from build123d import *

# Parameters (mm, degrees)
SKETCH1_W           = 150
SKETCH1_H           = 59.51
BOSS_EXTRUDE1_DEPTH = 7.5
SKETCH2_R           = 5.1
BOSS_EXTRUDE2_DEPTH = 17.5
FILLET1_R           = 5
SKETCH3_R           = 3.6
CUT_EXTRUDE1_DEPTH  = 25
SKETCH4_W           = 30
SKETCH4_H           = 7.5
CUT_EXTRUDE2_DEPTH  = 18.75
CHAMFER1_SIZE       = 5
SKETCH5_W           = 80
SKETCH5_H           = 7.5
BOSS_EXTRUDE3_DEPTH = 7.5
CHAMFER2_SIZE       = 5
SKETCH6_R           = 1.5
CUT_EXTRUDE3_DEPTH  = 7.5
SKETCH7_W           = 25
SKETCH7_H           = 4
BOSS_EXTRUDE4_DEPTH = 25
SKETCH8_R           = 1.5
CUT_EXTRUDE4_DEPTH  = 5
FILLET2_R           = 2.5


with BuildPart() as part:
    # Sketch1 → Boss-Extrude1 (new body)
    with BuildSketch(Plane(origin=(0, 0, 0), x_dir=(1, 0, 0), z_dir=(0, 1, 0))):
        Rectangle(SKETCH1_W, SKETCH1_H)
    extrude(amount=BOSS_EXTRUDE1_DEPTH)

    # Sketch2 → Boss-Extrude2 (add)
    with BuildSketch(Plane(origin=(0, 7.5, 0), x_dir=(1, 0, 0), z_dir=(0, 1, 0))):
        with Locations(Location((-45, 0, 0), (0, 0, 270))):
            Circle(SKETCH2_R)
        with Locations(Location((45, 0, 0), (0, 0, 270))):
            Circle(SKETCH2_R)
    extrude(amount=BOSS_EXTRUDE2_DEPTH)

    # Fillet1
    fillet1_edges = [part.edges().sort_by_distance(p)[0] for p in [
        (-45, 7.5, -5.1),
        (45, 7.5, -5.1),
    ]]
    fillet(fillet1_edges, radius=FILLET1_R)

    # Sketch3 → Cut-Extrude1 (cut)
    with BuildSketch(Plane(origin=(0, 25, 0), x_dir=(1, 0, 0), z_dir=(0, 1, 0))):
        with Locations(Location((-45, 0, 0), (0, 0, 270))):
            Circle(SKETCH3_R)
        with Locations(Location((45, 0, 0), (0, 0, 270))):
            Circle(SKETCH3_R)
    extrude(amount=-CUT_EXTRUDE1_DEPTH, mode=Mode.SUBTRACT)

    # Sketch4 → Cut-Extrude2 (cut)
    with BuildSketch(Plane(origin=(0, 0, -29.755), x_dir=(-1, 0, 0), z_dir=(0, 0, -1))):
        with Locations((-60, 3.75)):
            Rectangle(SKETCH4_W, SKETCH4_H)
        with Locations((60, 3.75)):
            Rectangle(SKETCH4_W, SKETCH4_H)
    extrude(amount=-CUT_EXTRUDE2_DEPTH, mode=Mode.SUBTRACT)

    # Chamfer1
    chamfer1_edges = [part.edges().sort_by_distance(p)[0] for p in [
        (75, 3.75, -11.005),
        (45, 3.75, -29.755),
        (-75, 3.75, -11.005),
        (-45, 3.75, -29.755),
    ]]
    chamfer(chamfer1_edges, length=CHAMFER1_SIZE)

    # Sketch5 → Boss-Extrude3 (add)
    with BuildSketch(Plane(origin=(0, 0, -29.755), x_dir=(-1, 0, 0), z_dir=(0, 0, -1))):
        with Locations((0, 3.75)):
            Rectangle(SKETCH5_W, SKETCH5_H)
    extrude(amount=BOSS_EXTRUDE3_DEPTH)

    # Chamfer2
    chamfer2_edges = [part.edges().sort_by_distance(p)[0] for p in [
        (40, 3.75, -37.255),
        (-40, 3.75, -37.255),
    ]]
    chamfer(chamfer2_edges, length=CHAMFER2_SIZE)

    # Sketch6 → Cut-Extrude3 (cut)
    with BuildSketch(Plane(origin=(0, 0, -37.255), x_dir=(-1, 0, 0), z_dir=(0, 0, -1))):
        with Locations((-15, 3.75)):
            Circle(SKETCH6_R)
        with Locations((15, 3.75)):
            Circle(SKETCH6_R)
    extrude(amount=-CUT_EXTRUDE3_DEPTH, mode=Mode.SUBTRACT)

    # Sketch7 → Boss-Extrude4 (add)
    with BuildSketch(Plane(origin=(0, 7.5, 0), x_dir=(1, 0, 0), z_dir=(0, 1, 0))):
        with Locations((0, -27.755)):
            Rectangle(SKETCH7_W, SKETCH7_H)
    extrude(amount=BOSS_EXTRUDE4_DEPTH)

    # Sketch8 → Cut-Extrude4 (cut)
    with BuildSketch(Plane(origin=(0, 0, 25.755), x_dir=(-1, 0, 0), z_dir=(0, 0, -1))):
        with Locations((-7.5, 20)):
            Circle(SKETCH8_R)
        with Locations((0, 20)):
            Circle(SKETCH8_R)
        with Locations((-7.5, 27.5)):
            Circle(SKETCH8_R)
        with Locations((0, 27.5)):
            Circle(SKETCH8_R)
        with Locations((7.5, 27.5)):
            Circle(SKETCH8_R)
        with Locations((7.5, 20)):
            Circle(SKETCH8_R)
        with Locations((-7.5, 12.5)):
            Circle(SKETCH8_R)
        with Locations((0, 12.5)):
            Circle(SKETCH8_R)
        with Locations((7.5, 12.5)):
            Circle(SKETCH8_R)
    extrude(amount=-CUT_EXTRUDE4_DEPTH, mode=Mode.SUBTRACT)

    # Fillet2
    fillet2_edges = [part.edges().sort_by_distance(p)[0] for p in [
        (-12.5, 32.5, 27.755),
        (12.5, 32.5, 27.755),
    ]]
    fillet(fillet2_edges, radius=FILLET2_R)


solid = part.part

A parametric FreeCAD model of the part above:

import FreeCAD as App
import Part
import Sketcher
from FreeCAD import Vector
Q = App.Units.Quantity


def edges_at(feature, points):
    """Names of the edges that pass closest to the given points."""
    edges = feature.Shape.Edges
    near = lambda p: min(range(len(edges)), key=lambda i: edges[i].distToShape(Part.Vertex(*p))[0])
    return sorted({f"Edge{near(p) + 1}" for p in points})

doc = App.newDocument("Part")
body = doc.addObject("PartDesign::Body", "Body")

sketch1 = doc.addObject("Sketcher::SketchObject", "Sketch")
body.addObject(sketch1)
sketch1.AttachmentSupport = (doc.XZ_Plane, [""])
sketch1.MapMode = "FlatFace"
sketch1.addGeometry([
    Part.LineSegment(Vector(-75, -29.755, 0), Vector(-75, 29.755, 0)),
    Part.LineSegment(Vector(-75, 29.755, 0), Vector(75, 29.755, 0)),
    Part.LineSegment(Vector(75, 29.755, 0), Vector(75, -29.755, 0)),
    Part.LineSegment(Vector(75, -29.755, 0), Vector(-75, -29.755, 0)),
], False)
sketch1.addConstraint([
    Sketcher.Constraint("Coincident", 0, 2, 1, 1),
    Sketcher.Constraint("Coincident", 1, 2, 2, 1),
    Sketcher.Constraint("Coincident", 2, 2, 3, 1),
    Sketcher.Constraint("Coincident", 3, 2, 0, 1),
    Sketcher.Constraint("Vertical", 0),
    Sketcher.Constraint("Horizontal", 1),
    Sketcher.Constraint("Vertical", 2),
    Sketcher.Constraint("Horizontal", 3),
    Sketcher.Constraint("Symmetric", 0, 2, 2, 2, -1, 1),
    Sketcher.Constraint("DistanceX", 1, 1, 1, 2, Q("150 mm")),
    Sketcher.Constraint("DistanceY", 0, 1, 0, 2, Q("59.51 mm")),
])
pad1 = doc.addObject("PartDesign::Pad", "Pad")
body.addObject(pad1)
pad1.Profile = sketch1
pad1.Length = 7.5
pad1.Reversed = True

sketch2 = doc.addObject("Sketcher::SketchObject", "Sketch001")
body.addObject(sketch2)
sketch2.AttachmentSupport = (doc.XZ_Plane, [""])
sketch2.MapMode = "FlatFace"
sketch2.AttachmentOffset = App.Placement(Vector(0, 0, -7.5), App.Rotation())
sketch2.addGeometry([
    Part.Circle(Vector(-45, 0, 0), Vector(0, 0, 1), 5.1),
    Part.Circle(Vector(45, 0, 0), Vector(0, 0, 1), 5.1),
], False)
sketch2.addConstraint([
    Sketcher.Constraint("Equal", 0, 1),
    Sketcher.Constraint("Symmetric", 0, 3, 1, 3, -1, 1),
    Sketcher.Constraint("PointOnObject", 0, 3, -1),
    Sketcher.Constraint("Diameter", 0, Q("10.2 mm")),
    Sketcher.Constraint("DistanceX", 0, 3, -1, 1, Q("45 mm")),
])
pad2 = doc.addObject("PartDesign::Pad", "Pad001")
body.addObject(pad2)
pad2.Profile = sketch2
pad2.Length = 17.5
pad2.Reversed = True
doc.recompute()

fillet = doc.addObject("PartDesign::Fillet", "Fillet")
body.addObject(fillet)
fillet.Base = (pad2, edges_at(pad2, [(-45, 7.5, -5.1), (45, 7.5, -5.1)]))
fillet.Radius = 5

sketch3 = doc.addObject("Sketcher::SketchObject", "Sketch002")
body.addObject(sketch3)
sketch3.AttachmentSupport = (doc.XZ_Plane, [""])
sketch3.MapMode = "FlatFace"
sketch3.AttachmentOffset = App.Placement(Vector(0, 0, -25), App.Rotation())
sketch3.addGeometry([
    Part.Circle(Vector(-45, 0, 0), Vector(0, 0, 1), 3.6),
    Part.Circle(Vector(45, 0, 0), Vector(0, 0, 1), 3.6),
], False)
sketch3.addConstraint([
    Sketcher.Constraint("Equal", 0, 1),
    Sketcher.Constraint("Symmetric", 0, 3, 1, 3, -1, 1),
    Sketcher.Constraint("PointOnObject", 0, 3, -1),
    Sketcher.Constraint("Diameter", 0, Q("7.2 mm")),
    Sketcher.Constraint("DistanceX", 0, 3, -1, 1, Q("45 mm")),
])
pocket1 = doc.addObject("PartDesign::Pocket", "Pocket")
body.addObject(pocket1)
pocket1.Profile = sketch3
pocket1.Length = 25
pocket1.Reversed = True

sketch4 = doc.addObject("Sketcher::SketchObject", "Sketch003")
body.addObject(sketch4)
sketch4.AttachmentSupport = (doc.XY_Plane, [""])
sketch4.MapMode = "FlatFace"
sketch4.AttachmentOffset = App.Placement(Vector(0, 0, -29.755), App.Rotation())
sketch4.addGeometry([
    Part.LineSegment(Vector(75, 7.5, 0), Vector(75, 0, 0)),
    Part.LineSegment(Vector(75, 0, 0), Vector(45, 0, 0)),
    Part.LineSegment(Vector(45, 0, 0), Vector(45, 7.5, 0)),
    Part.LineSegment(Vector(45, 7.5, 0), Vector(75, 7.5, 0)),
    Part.LineSegment(Vector(-45, 7.5, 0), Vector(-45, 0, 0)),
    Part.LineSegment(Vector(-45, 0, 0), Vector(-75, 0, 0)),
    Part.LineSegment(Vector(-75, 0, 0), Vector(-75, 7.5, 0)),
    Part.LineSegment(Vector(-75, 7.5, 0), Vector(-45, 7.5, 0)),
], False)
sketch4.addConstraint([
    Sketcher.Constraint("Coincident", 0, 2, 1, 1),
    Sketcher.Constraint("Coincident", 1, 2, 2, 1),
    Sketcher.Constraint("Coincident", 2, 2, 3, 1),
    Sketcher.Constraint("Coincident", 3, 2, 0, 1),
    Sketcher.Constraint("Coincident", 4, 2, 5, 1),
    Sketcher.Constraint("Coincident", 5, 2, 6, 1),
    Sketcher.Constraint("Coincident", 6, 2, 7, 1),
    Sketcher.Constraint("Coincident", 7, 2, 4, 1),
    Sketcher.Constraint("Vertical", 0),
    Sketcher.Constraint("Horizontal", 1),
    Sketcher.Constraint("Vertical", 2),
    Sketcher.Constraint("Horizontal", 3),
    Sketcher.Constraint("Vertical", 4),
    Sketcher.Constraint("Horizontal", 5),
    Sketcher.Constraint("Vertical", 6),
    Sketcher.Constraint("Horizontal", 7),
    Sketcher.Constraint("Symmetric", 1, 2, 4, 2, -1, 1),
    Sketcher.Constraint("Symmetric", 0, 2, 5, 2, -2),
    Sketcher.Constraint("Horizontal", 3, 2, 6, 2),
    Sketcher.Constraint("DistanceX", 1, 2, 1, 1, Q("30 mm")),
    Sketcher.Constraint("DistanceY", 0, 2, 0, 1, Q("7.5 mm")),
    Sketcher.Constraint("DistanceX", -1, 1, 0, 2, Q("75 mm")),
])
pocket2 = doc.addObject("PartDesign::Pocket", "Pocket001")
body.addObject(pocket2)
pocket2.Profile = sketch4
pocket2.Length = 18.75
pocket2.Reversed = True
doc.recompute()

chamfer = doc.addObject("PartDesign::Chamfer", "Chamfer")
body.addObject(chamfer)
chamfer.Base = (pocket2, edges_at(pocket2, [
    (75, 3.75, -11.005),
    (45, 3.75, -29.755),
    (-75, 3.75, -11.005),
    (-45, 3.75, -29.755),
]))
chamfer.Size = 5

sketch5 = doc.addObject("Sketcher::SketchObject", "Sketch004")
body.addObject(sketch5)
sketch5.AttachmentSupport = (doc.XY_Plane, [""])
sketch5.MapMode = "FlatFace"
sketch5.AttachmentOffset = App.Placement(Vector(0, 0, -29.755), App.Rotation())
sketch5.addGeometry([
    Part.LineSegment(Vector(40, 7.5, 0), Vector(40, 0, 0)),
    Part.LineSegment(Vector(40, 0, 0), Vector(-40, 0, 0)),
    Part.LineSegment(Vector(-40, 0, 0), Vector(-40, 7.5, 0)),
    Part.LineSegment(Vector(-40, 7.5, 0), Vector(40, 7.5, 0)),
], False)
sketch5.addConstraint([
    Sketcher.Constraint("Coincident", 0, 2, 1, 1),
    Sketcher.Constraint("Coincident", 1, 2, 2, 1),
    Sketcher.Constraint("Coincident", 2, 2, 3, 1),
    Sketcher.Constraint("Coincident", 3, 2, 0, 1),
    Sketcher.Constraint("Vertical", 0),
    Sketcher.Constraint("Horizontal", 1),
    Sketcher.Constraint("Vertical", 2),
    Sketcher.Constraint("Horizontal", 3),
    Sketcher.Constraint("Symmetric", 0, 2, 1, 2, -1, 1),
    Sketcher.Constraint("DistanceX", 1, 2, 1, 1, Q("80 mm")),
    Sketcher.Constraint("DistanceY", 0, 2, 0, 1, Q("7.5 mm")),
])
pad3 = doc.addObject("PartDesign::Pad", "Pad002")
body.addObject(pad3)
pad3.Profile = sketch5
pad3.Length = 7.5
pad3.Reversed = True
doc.recompute()

chamfer2 = doc.addObject("PartDesign::Chamfer", "Chamfer001")
body.addObject(chamfer2)
chamfer2.Base = (pad3, edges_at(pad3, [(40, 3.75, -37.255), (-40, 3.75, -37.255)]))
chamfer2.Size = 5

sketch6 = doc.addObject("Sketcher::SketchObject", "Sketch005")
body.addObject(sketch6)
sketch6.AttachmentSupport = (doc.XY_Plane, [""])
sketch6.MapMode = "FlatFace"
sketch6.AttachmentOffset = App.Placement(Vector(0, 0, -37.255), App.Rotation())
sketch6.addGeometry([
    Part.Circle(Vector(15, 3.75, 0), Vector(0, 0, 1), 1.5),
    Part.Circle(Vector(-15, 3.75, 0), Vector(0, 0, 1), 1.5),
], False)
sketch6.addConstraint([
    Sketcher.Constraint("Equal", 0, 1),
    Sketcher.Constraint("Symmetric", 0, 3, 1, 3, -2),
    Sketcher.Constraint("Diameter", 0, Q("3 mm")),
    Sketcher.Constraint("DistanceX", -1, 1, 0, 3, Q("15 mm")),
    Sketcher.Constraint("DistanceY", -1, 1, 0, 3, Q("3.75 mm")),
])
pocket3 = doc.addObject("PartDesign::Pocket", "Pocket002")
body.addObject(pocket3)
pocket3.Profile = sketch6
pocket3.Length = 7.5
pocket3.Reversed = True

sketch7 = doc.addObject("Sketcher::SketchObject", "Sketch006")
body.addObject(sketch7)
sketch7.AttachmentSupport = (doc.XZ_Plane, [""])
sketch7.MapMode = "FlatFace"
sketch7.AttachmentOffset = App.Placement(Vector(0, 0, -7.5), App.Rotation())
sketch7.addGeometry([
    Part.LineSegment(Vector(-12.5, 25.755, 0), Vector(-12.5, 29.755, 0)),
    Part.LineSegment(Vector(-12.5, 29.755, 0), Vector(12.5, 29.755, 0)),
    Part.LineSegment(Vector(12.5, 29.755, 0), Vector(12.5, 25.755, 0)),
    Part.LineSegment(Vector(12.5, 25.755, 0), Vector(-12.5, 25.755, 0)),
], False)
sketch7.addConstraint([
    Sketcher.Constraint("Coincident", 0, 2, 1, 1),
    Sketcher.Constraint("Coincident", 1, 2, 2, 1),
    Sketcher.Constraint("Coincident", 2, 2, 3, 1),
    Sketcher.Constraint("Coincident", 3, 2, 0, 1),
    Sketcher.Constraint("Vertical", 0),
    Sketcher.Constraint("Horizontal", 1),
    Sketcher.Constraint("Vertical", 2),
    Sketcher.Constraint("Horizontal", 3),
    Sketcher.Constraint("DistanceX", 1, 1, 1, 2, Q("25 mm")),
    Sketcher.Constraint("DistanceY", 0, 1, 0, 2, Q("4 mm")),
    Sketcher.Constraint("DistanceX", 0, 2, -1, 1, Q("12.5 mm")),
    Sketcher.Constraint("DistanceY", -1, 1, 0, 2, Q("29.755 mm")),
])
pad4 = doc.addObject("PartDesign::Pad", "Pad003")
body.addObject(pad4)
pad4.Profile = sketch7
pad4.Length = 25
pad4.Reversed = True

sketch8 = doc.addObject("Sketcher::SketchObject", "Sketch007")
body.addObject(sketch8)
sketch8.AttachmentSupport = (doc.XY_Plane, [""])
sketch8.MapMode = "FlatFace"
sketch8.AttachmentOffset = App.Placement(Vector(0, 0, 25.755), App.Rotation())
sketch8.addGeometry([
    Part.Circle(Vector(7.5, 20, 0), Vector(0, 0, 1), 1.5),
    Part.Circle(Vector(0, 20, 0), Vector(0, 0, 1), 1.5),
    Part.Circle(Vector(7.5, 27.5, 0), Vector(0, 0, 1), 1.5),
    Part.Circle(Vector(0, 27.5, 0), Vector(0, 0, 1), 1.5),
    Part.Circle(Vector(-7.5, 27.5, 0), Vector(0, 0, 1), 1.5),
    Part.Circle(Vector(-7.5, 20, 0), Vector(0, 0, 1), 1.5),
    Part.Circle(Vector(7.5, 12.5, 0), Vector(0, 0, 1), 1.5),
    Part.Circle(Vector(0, 12.5, 0), Vector(0, 0, 1), 1.5),
    Part.Circle(Vector(-7.5, 12.5, 0), Vector(0, 0, 1), 1.5),
], False)
sketch8.addConstraint([
    Sketcher.Constraint("Equal", 0, 1),
    Sketcher.Constraint("Equal", 1, 2),
    Sketcher.Constraint("Equal", 2, 3),
    Sketcher.Constraint("Equal", 3, 4),
    Sketcher.Constraint("Equal", 4, 5),
    Sketcher.Constraint("Equal", 5, 6),
    Sketcher.Constraint("Equal", 6, 7),
    Sketcher.Constraint("Equal", 7, 8),
    Sketcher.Constraint("Symmetric", 2, 3, 4, 3, -2),
    Sketcher.Constraint("Symmetric", 0, 3, 5, 3, -2),
    Sketcher.Constraint("Symmetric", 6, 3, 8, 3, -2),
    Sketcher.Constraint("PointOnObject", 1, 3, -2),
    Sketcher.Constraint("PointOnObject", 3, 3, -2),
    Sketcher.Constraint("PointOnObject", 7, 3, -2),
    Sketcher.Constraint("Horizontal", 0, 3, 1, 3),
    Sketcher.Constraint("Horizontal", 2, 3, 3, 3),
    Sketcher.Constraint("Horizontal", 6, 3, 7, 3),
    Sketcher.Constraint("Vertical", 0, 3, 2, 3),
    Sketcher.Constraint("Vertical", 2, 3, 6, 3),
    Sketcher.Constraint("Diameter", 0, Q("3 mm")),
    Sketcher.Constraint("DistanceY", -1, 1, 0, 3, Q("20 mm")),
    Sketcher.Constraint("DistanceX", 4, 3, 2, 3, Q("15 mm")),
    Sketcher.Constraint("DistanceY", 6, 3, 2, 3, Q("15 mm")),
    Sketcher.Constraint("DistanceY", -1, 1, 2, 3, Q("27.5 mm")),
])
pocket4 = doc.addObject("PartDesign::Pocket", "Pocket003")
body.addObject(pocket4)
pocket4.Profile = sketch8
pocket4.Length = 5
pocket4.Reversed = True
doc.recompute()

fillet2 = doc.addObject("PartDesign::Fillet", "Fillet001")
body.addObject(fillet2)
fillet2.Base = (pocket4, edges_at(pocket4, [(-12.5, 32.5, 27.755), (12.5, 32.5, 27.755)]))
fillet2.Radius = 2.5

doc.recompute()
